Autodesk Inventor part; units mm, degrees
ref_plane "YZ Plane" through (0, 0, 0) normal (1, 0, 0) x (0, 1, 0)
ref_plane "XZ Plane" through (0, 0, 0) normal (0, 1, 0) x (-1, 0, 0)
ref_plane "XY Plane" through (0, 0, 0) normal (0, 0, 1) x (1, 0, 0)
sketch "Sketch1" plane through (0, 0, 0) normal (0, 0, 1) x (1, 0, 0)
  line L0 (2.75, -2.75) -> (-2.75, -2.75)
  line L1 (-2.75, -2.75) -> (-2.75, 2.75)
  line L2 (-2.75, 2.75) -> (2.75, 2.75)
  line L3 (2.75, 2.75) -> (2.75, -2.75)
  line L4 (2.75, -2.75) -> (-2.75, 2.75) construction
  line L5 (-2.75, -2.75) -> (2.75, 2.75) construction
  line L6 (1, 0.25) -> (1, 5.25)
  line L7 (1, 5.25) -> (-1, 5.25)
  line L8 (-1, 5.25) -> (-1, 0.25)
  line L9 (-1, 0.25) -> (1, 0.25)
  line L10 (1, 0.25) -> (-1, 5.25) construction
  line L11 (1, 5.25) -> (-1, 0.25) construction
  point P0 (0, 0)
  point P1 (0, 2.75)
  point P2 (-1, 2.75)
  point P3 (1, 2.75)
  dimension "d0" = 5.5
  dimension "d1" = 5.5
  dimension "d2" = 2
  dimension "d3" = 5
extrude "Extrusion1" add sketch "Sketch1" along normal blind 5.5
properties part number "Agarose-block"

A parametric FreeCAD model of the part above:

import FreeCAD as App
import Part
import Sketcher
from FreeCAD import Vector
Q = App.Units.Quantity


def add_polygon(sketch, points):
    """Adds a closed chain of lines whose ends are joined by coincident constraints."""
    first, n = sketch.GeometryCount, len(points)
    for a, b in zip(points, points[1:] + points[:1]):
        sketch.addGeometry(Part.LineSegment(App.Vector(*a, 0), App.Vector(*b, 0)), False)
    for i in range(n):
        sketch.addConstraint(Sketcher.Constraint("Coincident", first + i, 2, first + (i + 1) % n, 1))

doc = App.newDocument("Part")
body = doc.addObject("PartDesign::Body", "Body")

# Sketch on XY plane
sketch1 = body.newObject("Sketcher::SketchObject", "Sketch")
sketch1.AttachmentSupport = (doc.getObject("XY_Plane"), [""])
sketch1.MapMode = "FlatFace"
add_polygon(sketch1, [(-2.8, -2.8), (2.8, -2.8), (2.8, 2.8), (1, 2.8), (1, 5.2), (-1, 5.2), (-1, 2.8), (-2.8, 2.8)])  # lines 0-7
sketch1.addConstraint([
    Sketcher.Constraint("Horizontal", 0),
    Sketcher.Constraint("Vertical", 1),
    Sketcher.Constraint("Horizontal", 2),
    Sketcher.Constraint("Vertical", 3),
    Sketcher.Constraint("Horizontal", 4),
    Sketcher.Constraint("Vertical", 5),
    Sketcher.Constraint("Horizontal", 6),
    Sketcher.Constraint("Vertical", 7),
    Sketcher.Constraint("Symmetric", 0, 2, 6, 2, -1, 1),
    Sketcher.Constraint("Symmetric", 2, 2, 5, 2, -2),
    Sketcher.Constraint("Equal", 0, 1),
    Sketcher.Constraint("DistanceX", 4, 2, 4, 1, Q("2 mm")),
    Sketcher.Constraint("DistanceX", 0, 1, 0, 2, Q("5.5 mm")),
    Sketcher.Constraint("DistanceY", 3, 1, 3, 2, Q("2.5 mm")),
])
pad1 = body.newObject("PartDesign::Pad", "Pad")
pad1.Profile = sketch1
pad1.Length = 5.5

doc.recompute()
